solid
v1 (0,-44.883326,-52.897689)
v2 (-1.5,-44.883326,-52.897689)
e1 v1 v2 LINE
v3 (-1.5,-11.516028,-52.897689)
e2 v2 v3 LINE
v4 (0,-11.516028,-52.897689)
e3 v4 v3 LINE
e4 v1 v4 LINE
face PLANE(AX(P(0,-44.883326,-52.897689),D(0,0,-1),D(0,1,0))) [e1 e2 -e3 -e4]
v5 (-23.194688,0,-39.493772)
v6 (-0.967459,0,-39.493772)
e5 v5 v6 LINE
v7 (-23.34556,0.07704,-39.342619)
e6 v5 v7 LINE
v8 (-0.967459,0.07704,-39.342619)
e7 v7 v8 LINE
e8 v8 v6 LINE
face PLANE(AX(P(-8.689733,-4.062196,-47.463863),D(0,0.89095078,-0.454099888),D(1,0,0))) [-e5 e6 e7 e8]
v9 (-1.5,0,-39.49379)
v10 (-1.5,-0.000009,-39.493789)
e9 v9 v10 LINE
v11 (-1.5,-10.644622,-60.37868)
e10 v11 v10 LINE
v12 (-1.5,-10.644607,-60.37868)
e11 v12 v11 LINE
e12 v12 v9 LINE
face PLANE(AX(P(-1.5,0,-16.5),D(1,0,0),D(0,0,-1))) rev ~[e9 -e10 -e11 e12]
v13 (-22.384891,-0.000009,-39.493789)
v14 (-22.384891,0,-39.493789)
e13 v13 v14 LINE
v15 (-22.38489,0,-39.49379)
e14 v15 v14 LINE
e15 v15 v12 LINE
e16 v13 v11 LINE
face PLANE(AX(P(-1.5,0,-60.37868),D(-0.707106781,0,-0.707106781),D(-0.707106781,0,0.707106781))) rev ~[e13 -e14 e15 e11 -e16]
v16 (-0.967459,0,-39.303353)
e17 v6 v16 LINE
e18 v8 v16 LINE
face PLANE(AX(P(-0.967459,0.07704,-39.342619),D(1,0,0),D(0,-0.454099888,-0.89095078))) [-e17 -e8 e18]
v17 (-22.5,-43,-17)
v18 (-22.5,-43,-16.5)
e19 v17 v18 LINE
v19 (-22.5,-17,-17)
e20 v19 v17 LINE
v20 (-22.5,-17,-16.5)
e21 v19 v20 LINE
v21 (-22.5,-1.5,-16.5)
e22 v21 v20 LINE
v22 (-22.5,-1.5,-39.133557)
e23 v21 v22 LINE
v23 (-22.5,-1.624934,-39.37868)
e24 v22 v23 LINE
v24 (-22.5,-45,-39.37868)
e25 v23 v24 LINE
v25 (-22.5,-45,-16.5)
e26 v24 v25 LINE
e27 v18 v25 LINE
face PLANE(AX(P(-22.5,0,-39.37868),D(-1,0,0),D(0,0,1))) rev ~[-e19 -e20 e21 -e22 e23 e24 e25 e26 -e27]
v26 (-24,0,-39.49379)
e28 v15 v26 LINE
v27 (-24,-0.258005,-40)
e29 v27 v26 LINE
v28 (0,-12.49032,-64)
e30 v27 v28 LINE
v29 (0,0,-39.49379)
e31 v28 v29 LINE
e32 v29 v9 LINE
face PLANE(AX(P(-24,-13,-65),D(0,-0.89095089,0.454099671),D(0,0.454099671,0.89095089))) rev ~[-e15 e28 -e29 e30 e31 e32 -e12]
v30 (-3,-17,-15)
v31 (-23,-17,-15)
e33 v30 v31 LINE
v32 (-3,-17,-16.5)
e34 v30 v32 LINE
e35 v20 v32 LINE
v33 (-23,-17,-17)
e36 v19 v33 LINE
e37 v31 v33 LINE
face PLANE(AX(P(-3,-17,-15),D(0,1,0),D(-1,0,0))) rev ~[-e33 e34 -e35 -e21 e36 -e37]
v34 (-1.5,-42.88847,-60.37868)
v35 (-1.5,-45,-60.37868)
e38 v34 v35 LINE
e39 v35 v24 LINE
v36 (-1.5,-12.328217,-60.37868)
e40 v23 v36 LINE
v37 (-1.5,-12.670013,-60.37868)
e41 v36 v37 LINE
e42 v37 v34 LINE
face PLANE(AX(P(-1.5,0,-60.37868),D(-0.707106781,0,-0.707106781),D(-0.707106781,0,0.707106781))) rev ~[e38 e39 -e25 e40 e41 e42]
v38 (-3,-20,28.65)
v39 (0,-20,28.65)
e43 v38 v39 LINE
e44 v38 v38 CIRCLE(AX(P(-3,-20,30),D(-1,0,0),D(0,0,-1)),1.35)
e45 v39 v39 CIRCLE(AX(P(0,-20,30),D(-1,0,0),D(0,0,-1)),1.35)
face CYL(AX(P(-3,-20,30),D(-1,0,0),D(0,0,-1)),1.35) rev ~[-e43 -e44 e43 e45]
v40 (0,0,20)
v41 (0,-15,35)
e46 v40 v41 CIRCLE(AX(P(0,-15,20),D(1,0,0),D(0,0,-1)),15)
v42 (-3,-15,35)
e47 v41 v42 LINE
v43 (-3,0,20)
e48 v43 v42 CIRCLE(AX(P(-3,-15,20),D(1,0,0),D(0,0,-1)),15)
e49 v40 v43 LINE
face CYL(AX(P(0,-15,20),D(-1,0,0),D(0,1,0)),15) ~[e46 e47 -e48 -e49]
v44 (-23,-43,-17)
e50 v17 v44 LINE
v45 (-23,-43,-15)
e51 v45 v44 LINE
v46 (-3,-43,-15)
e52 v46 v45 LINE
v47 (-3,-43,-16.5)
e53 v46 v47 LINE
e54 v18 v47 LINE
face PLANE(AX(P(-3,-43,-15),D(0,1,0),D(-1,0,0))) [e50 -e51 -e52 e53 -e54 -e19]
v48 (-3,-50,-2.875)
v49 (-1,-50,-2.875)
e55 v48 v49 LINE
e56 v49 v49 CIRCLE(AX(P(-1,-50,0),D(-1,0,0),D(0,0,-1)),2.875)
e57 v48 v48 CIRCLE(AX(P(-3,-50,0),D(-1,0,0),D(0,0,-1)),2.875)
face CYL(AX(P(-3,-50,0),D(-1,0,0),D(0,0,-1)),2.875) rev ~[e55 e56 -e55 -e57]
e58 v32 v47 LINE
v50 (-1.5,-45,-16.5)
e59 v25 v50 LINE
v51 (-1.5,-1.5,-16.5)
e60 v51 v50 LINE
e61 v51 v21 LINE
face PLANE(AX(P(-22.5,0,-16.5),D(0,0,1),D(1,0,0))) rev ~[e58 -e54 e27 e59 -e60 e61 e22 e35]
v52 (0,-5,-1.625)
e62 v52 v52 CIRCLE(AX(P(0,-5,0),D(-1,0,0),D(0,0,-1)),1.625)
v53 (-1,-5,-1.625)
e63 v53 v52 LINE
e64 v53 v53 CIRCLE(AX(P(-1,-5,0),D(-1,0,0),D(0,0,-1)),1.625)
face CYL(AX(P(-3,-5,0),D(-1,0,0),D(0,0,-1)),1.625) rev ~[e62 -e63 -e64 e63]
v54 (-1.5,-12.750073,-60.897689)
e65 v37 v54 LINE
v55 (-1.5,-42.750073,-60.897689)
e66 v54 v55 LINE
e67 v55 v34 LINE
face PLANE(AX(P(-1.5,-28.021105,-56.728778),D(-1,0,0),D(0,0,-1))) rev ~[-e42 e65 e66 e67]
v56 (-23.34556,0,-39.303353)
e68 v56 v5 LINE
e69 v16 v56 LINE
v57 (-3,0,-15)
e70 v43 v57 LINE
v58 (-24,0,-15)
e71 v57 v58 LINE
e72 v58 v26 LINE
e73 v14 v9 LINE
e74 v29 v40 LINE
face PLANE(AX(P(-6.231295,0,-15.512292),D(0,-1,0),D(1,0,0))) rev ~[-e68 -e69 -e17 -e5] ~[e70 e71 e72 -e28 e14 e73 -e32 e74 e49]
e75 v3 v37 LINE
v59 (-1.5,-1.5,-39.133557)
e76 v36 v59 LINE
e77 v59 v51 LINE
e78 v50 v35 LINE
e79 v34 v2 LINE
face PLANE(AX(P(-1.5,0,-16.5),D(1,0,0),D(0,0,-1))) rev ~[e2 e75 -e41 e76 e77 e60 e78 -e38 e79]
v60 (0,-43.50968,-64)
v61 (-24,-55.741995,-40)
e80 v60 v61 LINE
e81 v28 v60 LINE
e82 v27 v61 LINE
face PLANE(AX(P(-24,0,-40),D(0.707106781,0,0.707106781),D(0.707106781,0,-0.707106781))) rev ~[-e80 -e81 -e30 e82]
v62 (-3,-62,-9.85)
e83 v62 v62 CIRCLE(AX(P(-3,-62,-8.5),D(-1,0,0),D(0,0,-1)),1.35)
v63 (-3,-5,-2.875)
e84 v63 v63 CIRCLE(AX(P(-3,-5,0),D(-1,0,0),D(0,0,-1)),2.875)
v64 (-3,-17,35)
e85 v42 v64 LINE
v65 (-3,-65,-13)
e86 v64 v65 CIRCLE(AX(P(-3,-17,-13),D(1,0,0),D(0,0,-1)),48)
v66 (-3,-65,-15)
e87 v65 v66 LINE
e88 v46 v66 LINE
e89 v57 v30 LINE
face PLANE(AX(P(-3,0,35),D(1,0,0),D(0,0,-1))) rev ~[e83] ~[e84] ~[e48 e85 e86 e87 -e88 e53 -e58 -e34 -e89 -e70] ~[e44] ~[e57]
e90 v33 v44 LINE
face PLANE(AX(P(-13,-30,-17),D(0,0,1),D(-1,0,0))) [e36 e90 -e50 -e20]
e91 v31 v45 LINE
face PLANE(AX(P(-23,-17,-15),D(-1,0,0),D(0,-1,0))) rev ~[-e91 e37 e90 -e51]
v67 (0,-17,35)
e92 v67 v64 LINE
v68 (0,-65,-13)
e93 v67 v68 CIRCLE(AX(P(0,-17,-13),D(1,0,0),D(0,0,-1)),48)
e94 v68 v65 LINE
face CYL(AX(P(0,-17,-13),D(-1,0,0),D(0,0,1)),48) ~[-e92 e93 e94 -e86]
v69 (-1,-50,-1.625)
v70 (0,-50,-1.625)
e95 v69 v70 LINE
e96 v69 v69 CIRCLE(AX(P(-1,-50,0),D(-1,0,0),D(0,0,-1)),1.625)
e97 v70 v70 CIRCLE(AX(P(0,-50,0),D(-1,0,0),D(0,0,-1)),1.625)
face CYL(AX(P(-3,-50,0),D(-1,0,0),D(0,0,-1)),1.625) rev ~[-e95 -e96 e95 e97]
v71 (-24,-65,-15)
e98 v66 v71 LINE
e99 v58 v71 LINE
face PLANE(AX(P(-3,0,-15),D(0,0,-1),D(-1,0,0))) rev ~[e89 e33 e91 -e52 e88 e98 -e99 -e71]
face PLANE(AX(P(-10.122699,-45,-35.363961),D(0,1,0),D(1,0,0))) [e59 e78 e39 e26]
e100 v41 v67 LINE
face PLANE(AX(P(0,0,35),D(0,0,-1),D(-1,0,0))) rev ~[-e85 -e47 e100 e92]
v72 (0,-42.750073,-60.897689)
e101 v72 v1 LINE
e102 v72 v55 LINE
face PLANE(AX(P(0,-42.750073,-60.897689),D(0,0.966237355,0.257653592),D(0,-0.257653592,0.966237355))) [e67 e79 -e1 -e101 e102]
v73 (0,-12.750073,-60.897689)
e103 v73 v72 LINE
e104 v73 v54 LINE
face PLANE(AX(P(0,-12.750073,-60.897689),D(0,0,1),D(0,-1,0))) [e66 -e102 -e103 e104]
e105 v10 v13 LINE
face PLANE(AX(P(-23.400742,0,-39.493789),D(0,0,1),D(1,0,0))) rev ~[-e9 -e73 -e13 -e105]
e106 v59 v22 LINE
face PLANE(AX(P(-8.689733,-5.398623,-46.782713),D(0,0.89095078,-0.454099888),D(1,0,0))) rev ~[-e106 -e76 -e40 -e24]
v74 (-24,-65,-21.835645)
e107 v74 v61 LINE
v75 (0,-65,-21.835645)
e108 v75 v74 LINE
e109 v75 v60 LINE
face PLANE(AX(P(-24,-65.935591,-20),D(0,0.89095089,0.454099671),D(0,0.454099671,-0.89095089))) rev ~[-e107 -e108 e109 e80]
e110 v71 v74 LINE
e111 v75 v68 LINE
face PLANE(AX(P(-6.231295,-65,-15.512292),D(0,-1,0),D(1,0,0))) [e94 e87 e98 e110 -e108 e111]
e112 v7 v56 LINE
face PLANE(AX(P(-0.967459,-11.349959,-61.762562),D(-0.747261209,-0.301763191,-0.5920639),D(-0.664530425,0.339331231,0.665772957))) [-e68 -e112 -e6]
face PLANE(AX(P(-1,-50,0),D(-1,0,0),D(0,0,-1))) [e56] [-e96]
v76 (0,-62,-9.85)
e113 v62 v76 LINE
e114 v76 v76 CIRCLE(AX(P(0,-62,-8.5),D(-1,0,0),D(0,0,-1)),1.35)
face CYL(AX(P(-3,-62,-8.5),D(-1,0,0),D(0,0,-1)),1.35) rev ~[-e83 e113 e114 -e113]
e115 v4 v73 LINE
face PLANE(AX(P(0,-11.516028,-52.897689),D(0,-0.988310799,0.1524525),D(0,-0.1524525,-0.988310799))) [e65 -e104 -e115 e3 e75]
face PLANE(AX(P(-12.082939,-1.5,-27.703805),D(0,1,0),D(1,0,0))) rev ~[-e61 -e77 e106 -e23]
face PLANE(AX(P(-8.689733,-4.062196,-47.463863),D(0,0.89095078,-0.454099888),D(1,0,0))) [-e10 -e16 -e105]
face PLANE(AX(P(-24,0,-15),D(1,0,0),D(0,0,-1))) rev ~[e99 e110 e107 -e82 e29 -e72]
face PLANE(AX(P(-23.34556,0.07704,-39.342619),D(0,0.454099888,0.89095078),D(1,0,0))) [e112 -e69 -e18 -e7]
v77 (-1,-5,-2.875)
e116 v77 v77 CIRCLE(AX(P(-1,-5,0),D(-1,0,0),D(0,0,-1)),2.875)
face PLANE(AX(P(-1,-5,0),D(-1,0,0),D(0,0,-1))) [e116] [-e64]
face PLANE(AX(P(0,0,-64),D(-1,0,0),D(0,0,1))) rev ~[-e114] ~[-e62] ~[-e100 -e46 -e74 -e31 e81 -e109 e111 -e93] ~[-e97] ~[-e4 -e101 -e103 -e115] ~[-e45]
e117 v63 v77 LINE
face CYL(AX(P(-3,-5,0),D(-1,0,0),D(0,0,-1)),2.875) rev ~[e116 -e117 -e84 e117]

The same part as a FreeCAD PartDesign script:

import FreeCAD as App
import Part
import Sketcher
from FreeCAD import Vector
Q = App.Units.Quantity


def edges_at(feature, points):
    """Names of the edges that pass closest to the given points."""
    edges = feature.Shape.Edges
    near = lambda p: min(range(len(edges)), key=lambda i: edges[i].distToShape(Part.Vertex(*p))[0])
    return sorted({f"Edge{near(p) + 1}" for p in points})


def add_polygon(sketch, points):
    """Adds a closed chain of lines whose ends are joined by coincident constraints."""
    first, n = sketch.GeometryCount, len(points)
    for a, b in zip(points, points[1:] + points[:1]):
        sketch.addGeometry(Part.LineSegment(App.Vector(*a, 0), App.Vector(*b, 0)), False)
    for i in range(n):
        sketch.addConstraint(Sketcher.Constraint("Coincident", first + i, 2, first + (i + 1) % n, 1))

doc = App.newDocument("Part")
body = doc.addObject("PartDesign::Body", "Body")

# Sketch on XZ plane
sketch1 = body.newObject("Sketcher::SketchObject", "Sketch")
sketch1.AttachmentSupport = (doc.getObject("XZ_Plane"), [""])
sketch1.MapMode = "FlatFace"
add_polygon(sketch1, [(0, -64), (0, 35), (-3, 35), (-3, -15), (-24, -15), (-24, -40)])  # lines 0-5
sketch1.addConstraint(Sketcher.Constraint("Vertical", 0))
sketch1.addConstraint(Sketcher.Constraint("Horizontal", 1))
sketch1.addConstraint(Sketcher.Constraint("Vertical", 2))
sketch1.addConstraint(Sketcher.Constraint("Horizontal", 3))
sketch1.addConstraint(Sketcher.Constraint("Vertical", 4))
sketch1.addConstraint(Sketcher.Constraint("PointOnObject", 0, 2, -2))
sketch1.addConstraint(Sketcher.Constraint("DistanceX", 1, 2, 1, 1, Q("3 mm")))
sketch1.addConstraint(Sketcher.Constraint("DistanceX", 3, 2, 3, 1, Q("21 mm")))
sketch1.addConstraint(Sketcher.Constraint("DistanceY", 0, 1, 0, 2, Q("99 mm")))
sketch1.addConstraint(Sketcher.Constraint("DistanceY", 2, 2, 2, 1, Q("50 mm")))
sketch1.addConstraint(Sketcher.Constraint("DistanceY", 4, 2, 4, 1, Q("25 mm")))
sketch1.addConstraint(Sketcher.Constraint("DistanceY", -1, 1, 0, 2, Q("35 mm")))
pad1 = body.newObject("PartDesign::Pad", "Pad")
pad1.Profile = sketch1
pad1.Length = 65

# Sketch on YZ plane
sketch2 = body.newObject("Sketcher::SketchObject", "Sketch001")
sketch2.AttachmentSupport = (doc.getObject("YZ_Plane"), [""])
sketch2.MapMode = "FlatFace"
sketch2.AttachmentOffset = App.Placement(Vector(0, 0, -3), App.Rotation())
sketch2.addGeometry(Part.Circle(Vector(-5, 0, 0), Vector(0, 0, 1), 1.625), False)
sketch2.addGeometry(Part.Circle(Vector(-50, 0, 0), Vector(0, 0, 1), 1.625), False)
sketch2.addConstraint(Sketcher.Constraint("Equal", 0, 1))
sketch2.addConstraint(Sketcher.Constraint("PointOnObject", 0, 3, -1))
sketch2.addConstraint(Sketcher.Constraint("PointOnObject", 1, 3, -1))
sketch2.addConstraint(Sketcher.Constraint("Diameter", 0, Q("3.25 mm")))
sketch2.addConstraint(Sketcher.Constraint("DistanceX", 0, 3, -1, 1, Q("5 mm")))
sketch2.addConstraint(Sketcher.Constraint("DistanceX", 1, 3, -1, 1, Q("50 mm")))
pocket1 = body.newObject("PartDesign::Pocket", "Pocket")
pocket1.Profile = sketch2
pocket1.Length = 5
pocket1.Reversed = True

# Sketch on YZ plane
sketch3 = body.newObject("Sketcher::SketchObject", "Sketch002")
sketch3.AttachmentSupport = (doc.getObject("YZ_Plane"), [""])
sketch3.MapMode = "FlatFace"
sketch3.AttachmentOffset = App.Placement(Vector(0, 0, -3), App.Rotation())
sketch3.addGeometry(Part.Circle(Vector(-50, 0, 0), Vector(0, 0, 1), 2.875), False)
sketch3.addGeometry(Part.Circle(Vector(-5, 0, 0), Vector(0, 0, 1), 2.875), False)
sketch3.addConstraint(Sketcher.Constraint("Equal", 0, 1))
sketch3.addConstraint(Sketcher.Constraint("PointOnObject", 0, 3, -1))
sketch3.addConstraint(Sketcher.Constraint("PointOnObject", 1, 3, -1))
sketch3.addConstraint(Sketcher.Constraint("Diameter", 0, Q("5.75 mm")))
sketch3.addConstraint(Sketcher.Constraint("DistanceX", 0, 3, -1, 1, Q("50 mm")))
sketch3.addConstraint(Sketcher.Constraint("DistanceX", 1, 3, -1, 1, Q("5 mm")))
pocket2 = body.newObject("PartDesign::Pocket", "Pocket001")
pocket2.Profile = sketch3
pocket2.Length = 2
pocket2.Reversed = True

# Sketch on YZ plane
sketch4 = body.newObject("Sketcher::SketchObject", "Sketch003")
sketch4.AttachmentSupport = (doc.getObject("YZ_Plane"), [""])
sketch4.MapMode = "FlatFace"
sketch4.AttachmentOffset = App.Placement(Vector(0, 0, -3), App.Rotation())
sketch4.addGeometry(Part.Circle(Vector(-62, -8.5, 0), Vector(0, 0, 1), 1.35), False)
sketch4.addGeometry(Part.Circle(Vector(-20, 30, 0), Vector(0, 0, 1), 1.35), False)
sketch4.addConstraint(Sketcher.Constraint("Equal", 0, 1))
sketch4.addConstraint(Sketcher.Constraint("Diameter", 0, Q("2.7 mm")))
sketch4.addConstraint(Sketcher.Constraint("DistanceX", 0, 3, -1, 1, Q("62 mm")))
sketch4.addConstraint(Sketcher.Constraint("DistanceX", 1, 3, -1, 1, Q("20 mm")))
sketch4.addConstraint(Sketcher.Constraint("DistanceY", -1, 1, 1, 3, Q("30 mm")))
sketch4.addConstraint(Sketcher.Constraint("DistanceY", 0, 3, -1, 1, Q("8.5 mm")))
pocket3 = body.newObject("PartDesign::Pocket", "Pocket002")
pocket3.Profile = sketch4
pocket3.Length = 5
pocket3.Reversed = True

# Sketch on XY plane
sketch5 = body.newObject("Sketcher::SketchObject", "Sketch004")
sketch5.AttachmentSupport = (doc.getObject("XY_Plane"), [""])
sketch5.MapMode = "FlatFace"
sketch5.AttachmentOffset = App.Placement(Vector(0, 0, -15), App.Rotation())
add_polygon(sketch5, [(-3, -43), (-3, -17), (-23, -17), (-23, -43)])  # lines 0-3
sketch5.addConstraint(Sketcher.Constraint("Vertical", 0))
sketch5.addConstraint(Sketcher.Constraint("Horizontal", 1))
sketch5.addConstraint(Sketcher.Constraint("Vertical", 2))
sketch5.addConstraint(Sketcher.Constraint("Horizontal", 3))
sketch5.addConstraint(Sketcher.Constraint("DistanceX", 1, 2, 1, 1, Q("20 mm")))
sketch5.addConstraint(Sketcher.Constraint("DistanceY", 0, 1, 0, 2, Q("26 mm")))
sketch5.addConstraint(Sketcher.Constraint("DistanceX", 0, 2, -1, 1, Q("3 mm")))
sketch5.addConstraint(Sketcher.Constraint("DistanceY", 0, 2, -1, 1, Q("17 mm")))
pocket4 = body.newObject("PartDesign::Pocket", "Pocket003")
pocket4.Profile = sketch5
pocket4.Length = 2

# Sketch on YZ plane
sketch6 = body.newObject("Sketcher::SketchObject", "Sketch005")
sketch6.AttachmentSupport = (doc.getObject("YZ_Plane"), [""])
sketch6.MapMode = "FlatFace"
sketch6.AttachmentOffset = App.Placement(Vector(0, 0, -24), App.Rotation())
add_polygon(sketch6, [(-65.935591, -20), (-43, -65), (-13, -65), (9.935591, -20), (9.935591, -140.441742), (-74.581261, -140.441742)])  # lines 0-5
sketch6.addConstraint(Sketcher.Constraint("Horizontal", 1))
sketch6.addConstraint(Sketcher.Constraint("Vertical", 3))
sketch6.addConstraint(Sketcher.Constraint("Horizontal", 4))
sketch6.addConstraint(Sketcher.Constraint("Horizontal", 2, 2, 5, 2))
sketch6.addConstraint(Sketcher.Constraint("Equal", 0, 2))
sketch6.addConstraint(Sketcher.Constraint("DistanceX", 1, 1, 1, 2, Q("30 mm")))
sketch6.addConstraint(Sketcher.Constraint("DistanceX", 0, 2, -1, 1, Q("43 mm")))
sketch6.addConstraint(Sketcher.Constraint("DistanceY", 0, 2, -1, 1, Q("65 mm")))
sketch6.addConstraint(Sketcher.Constraint("DistanceY", 2, 2, -1, 1, Q("20 mm")))
sketch6.addConstraint(Sketcher.Constraint("DistanceX", 4, 2, 4, 1, Q("84.516852 mm")))
sketch6.addConstraint(Sketcher.Constraint("Distance", 5, Q("120.751649 mm")))
sketch6.addConstraint(Sketcher.Constraint("DistanceY", 3, 2, 3, 1, Q("120.441742 mm")))
pocket5 = body.newObject("PartDesign::Pocket", "Pocket004")
pocket5.Profile = sketch6
pocket5.Type = "ThroughAll"
pocket5.Reversed = True

# Sketch on XZ plane
sketch7 = body.newObject("Sketcher::SketchObject", "Sketch006")
sketch7.AttachmentSupport = (doc.getObject("XZ_Plane"), [""])
sketch7.MapMode = "FlatFace"
add_polygon(sketch7, [(-22.5, -16.5), (-1.5, -16.5), (-1.5, -60.37868), (-22.5, -39.37868)])  # lines 0-3
sketch7.addConstraint(Sketcher.Constraint("Horizontal", 0))
sketch7.addConstraint(Sketcher.Constraint("Vertical", 1))
sketch7.addConstraint(Sketcher.Constraint("Vertical", 3))
sketch7.addConstraint(Sketcher.Constraint("DistanceX", 0, 1, 0, 2, Q("21 mm")))
sketch7.addConstraint(Sketcher.Constraint("Angle", 2, Q("135 deg")))
sketch7.addConstraint(Sketcher.Constraint("DistanceX", 0, 2, -1, 1, Q("1.5 mm")))
sketch7.addConstraint(Sketcher.Constraint("DistanceY", 0, 2, -1, 1, Q("16.5 mm")))
sketch7.addConstraint(Sketcher.Constraint("DistanceY", 1, 2, 1, 1, Q("43.87868 mm")))
pocket6 = body.newObject("PartDesign::Pocket", "Pocket005")
pocket6.Profile = sketch7
pocket6.Length = 45
pocket6.Reversed = True

# Sketch on XZ plane
sketch8 = body.newObject("Sketcher::SketchObject", "Sketch007")
sketch8.AttachmentSupport = (doc.getObject("XZ_Plane"), [""])
sketch8.MapMode = "FlatFace"
add_polygon(sketch8, [(-23.400742, -39.493789), (-23.400742, -15.91382), (-0.765136, -15.91382), (-0.765136, -39.493789)])  # lines 0-3
sketch8.addConstraint(Sketcher.Constraint("Vertical", 0))
sketch8.addConstraint(Sketcher.Constraint("Horizontal", 1))
sketch8.addConstraint(Sketcher.Constraint("Vertical", 2))
sketch8.addConstraint(Sketcher.Constraint("Horizontal", 3))
sketch8.addConstraint(Sketcher.Constraint("DistanceY", 0, 1, 0, 2, Q("23.579969 mm")))
sketch8.addConstraint(Sketcher.Constraint("DistanceX", 1, 1, 1, 2, Q("22.635606 mm")))
sketch8.addConstraint(Sketcher.Constraint("DistanceY", 0, 2, -1, 1, Q("15.91382 mm")))
sketch8.addConstraint(Sketcher.Constraint("DistanceX", 0, 2, -1, 1, Q("23.400742 mm")))
pad2 = body.newObject("PartDesign::Pad", "Pad001")
pad2.Profile = sketch8
pad2.Length = 1.5

# Sketch on an angled plane
sketch9 = body.newObject("Sketcher::SketchObject", "Sketch008")
sketch9.Placement = App.Placement(Vector(0, 15.978418, -8.143877), App.Rotation(Vector(1, 0, 0), Vector(0, -0.454099888, -0.89095078), Vector(0, 0.89095078, -0.454099888), "ZXY"))
add_polygon(sketch9, [(-0.967459, 35.017357), (-0.967459, 60.181422), (-23.34556, 35.017357)])  # lines 0-2
sketch9.addConstraint(Sketcher.Constraint("Vertical", 0))
sketch9.addConstraint(Sketcher.Constraint("Horizontal", 2))
sketch9.addConstraint(Sketcher.Constraint("DistanceX", 2, 1, 2, 2, Q("22.378101 mm")))
sketch9.addConstraint(Sketcher.Constraint("Distance", 1, Q("33.675059 mm")))
sketch9.addConstraint(Sketcher.Constraint("DistanceX", 0, 2, -1, 1, Q("0.967459 mm")))
sketch9.addConstraint(Sketcher.Constraint("DistanceY", -1, 1, 0, 2, Q("60.181422 mm")))
pad3 = body.newObject("PartDesign::Pad", "Pad002")
pad3.Profile = sketch9
pad3.Length = 1.5
pad3.Reversed = True

# Sketch on YZ plane
sketch10 = body.newObject("Sketcher::SketchObject", "Sketch009")
sketch10.AttachmentSupport = (doc.getObject("YZ_Plane"), [""])
sketch10.MapMode = "FlatFace"
add_polygon(sketch10, [(-44.883326, -52.897689), (-42.750073, -60.897689), (-12.750073, -60.897689), (-11.516028, -52.897689)])  # lines 0-3
sketch10.addConstraint(Sketcher.Constraint("Horizontal", 1))
sketch10.addConstraint(Sketcher.Constraint("Horizontal", 3))
sketch10.addConstraint(Sketcher.Constraint("DistanceX", 1, 1, 1, 2, Q("30 mm")))
sketch10.addConstraint(Sketcher.Constraint("DistanceY", 1, 2, 2, 2, Q("8 mm")))
sketch10.addConstraint(Sketcher.Constraint("Distance", 0, Q("8.279539 mm")))
sketch10.addConstraint(Sketcher.Constraint("Distance", 2, Q("8.09462 mm")))
sketch10.addConstraint(Sketcher.Constraint("DistanceY", 0, 2, -1, 1, Q("60.897689 mm")))
sketch10.addConstraint(Sketcher.Constraint("DistanceX", 0, 2, -1, 1, Q("42.750073 mm")))
pocket7 = body.newObject("PartDesign::Pocket", "Pocket006")
pocket7.Profile = sketch10
pocket7.Length = 1.5
doc.recompute()

fillet = body.newObject("PartDesign::Fillet", "Fillet")
fillet.Base = (pocket7, edges_at(pocket7, [(-1.5, 0, 35)]))
fillet.Radius = 15
doc.recompute()

fillet2 = body.newObject("PartDesign::Fillet", "Fillet001")
fillet2.Base = (fillet, edges_at(fillet, [(-1.5, -65, 35)]))
fillet2.Radius = 48

doc.recompute()
